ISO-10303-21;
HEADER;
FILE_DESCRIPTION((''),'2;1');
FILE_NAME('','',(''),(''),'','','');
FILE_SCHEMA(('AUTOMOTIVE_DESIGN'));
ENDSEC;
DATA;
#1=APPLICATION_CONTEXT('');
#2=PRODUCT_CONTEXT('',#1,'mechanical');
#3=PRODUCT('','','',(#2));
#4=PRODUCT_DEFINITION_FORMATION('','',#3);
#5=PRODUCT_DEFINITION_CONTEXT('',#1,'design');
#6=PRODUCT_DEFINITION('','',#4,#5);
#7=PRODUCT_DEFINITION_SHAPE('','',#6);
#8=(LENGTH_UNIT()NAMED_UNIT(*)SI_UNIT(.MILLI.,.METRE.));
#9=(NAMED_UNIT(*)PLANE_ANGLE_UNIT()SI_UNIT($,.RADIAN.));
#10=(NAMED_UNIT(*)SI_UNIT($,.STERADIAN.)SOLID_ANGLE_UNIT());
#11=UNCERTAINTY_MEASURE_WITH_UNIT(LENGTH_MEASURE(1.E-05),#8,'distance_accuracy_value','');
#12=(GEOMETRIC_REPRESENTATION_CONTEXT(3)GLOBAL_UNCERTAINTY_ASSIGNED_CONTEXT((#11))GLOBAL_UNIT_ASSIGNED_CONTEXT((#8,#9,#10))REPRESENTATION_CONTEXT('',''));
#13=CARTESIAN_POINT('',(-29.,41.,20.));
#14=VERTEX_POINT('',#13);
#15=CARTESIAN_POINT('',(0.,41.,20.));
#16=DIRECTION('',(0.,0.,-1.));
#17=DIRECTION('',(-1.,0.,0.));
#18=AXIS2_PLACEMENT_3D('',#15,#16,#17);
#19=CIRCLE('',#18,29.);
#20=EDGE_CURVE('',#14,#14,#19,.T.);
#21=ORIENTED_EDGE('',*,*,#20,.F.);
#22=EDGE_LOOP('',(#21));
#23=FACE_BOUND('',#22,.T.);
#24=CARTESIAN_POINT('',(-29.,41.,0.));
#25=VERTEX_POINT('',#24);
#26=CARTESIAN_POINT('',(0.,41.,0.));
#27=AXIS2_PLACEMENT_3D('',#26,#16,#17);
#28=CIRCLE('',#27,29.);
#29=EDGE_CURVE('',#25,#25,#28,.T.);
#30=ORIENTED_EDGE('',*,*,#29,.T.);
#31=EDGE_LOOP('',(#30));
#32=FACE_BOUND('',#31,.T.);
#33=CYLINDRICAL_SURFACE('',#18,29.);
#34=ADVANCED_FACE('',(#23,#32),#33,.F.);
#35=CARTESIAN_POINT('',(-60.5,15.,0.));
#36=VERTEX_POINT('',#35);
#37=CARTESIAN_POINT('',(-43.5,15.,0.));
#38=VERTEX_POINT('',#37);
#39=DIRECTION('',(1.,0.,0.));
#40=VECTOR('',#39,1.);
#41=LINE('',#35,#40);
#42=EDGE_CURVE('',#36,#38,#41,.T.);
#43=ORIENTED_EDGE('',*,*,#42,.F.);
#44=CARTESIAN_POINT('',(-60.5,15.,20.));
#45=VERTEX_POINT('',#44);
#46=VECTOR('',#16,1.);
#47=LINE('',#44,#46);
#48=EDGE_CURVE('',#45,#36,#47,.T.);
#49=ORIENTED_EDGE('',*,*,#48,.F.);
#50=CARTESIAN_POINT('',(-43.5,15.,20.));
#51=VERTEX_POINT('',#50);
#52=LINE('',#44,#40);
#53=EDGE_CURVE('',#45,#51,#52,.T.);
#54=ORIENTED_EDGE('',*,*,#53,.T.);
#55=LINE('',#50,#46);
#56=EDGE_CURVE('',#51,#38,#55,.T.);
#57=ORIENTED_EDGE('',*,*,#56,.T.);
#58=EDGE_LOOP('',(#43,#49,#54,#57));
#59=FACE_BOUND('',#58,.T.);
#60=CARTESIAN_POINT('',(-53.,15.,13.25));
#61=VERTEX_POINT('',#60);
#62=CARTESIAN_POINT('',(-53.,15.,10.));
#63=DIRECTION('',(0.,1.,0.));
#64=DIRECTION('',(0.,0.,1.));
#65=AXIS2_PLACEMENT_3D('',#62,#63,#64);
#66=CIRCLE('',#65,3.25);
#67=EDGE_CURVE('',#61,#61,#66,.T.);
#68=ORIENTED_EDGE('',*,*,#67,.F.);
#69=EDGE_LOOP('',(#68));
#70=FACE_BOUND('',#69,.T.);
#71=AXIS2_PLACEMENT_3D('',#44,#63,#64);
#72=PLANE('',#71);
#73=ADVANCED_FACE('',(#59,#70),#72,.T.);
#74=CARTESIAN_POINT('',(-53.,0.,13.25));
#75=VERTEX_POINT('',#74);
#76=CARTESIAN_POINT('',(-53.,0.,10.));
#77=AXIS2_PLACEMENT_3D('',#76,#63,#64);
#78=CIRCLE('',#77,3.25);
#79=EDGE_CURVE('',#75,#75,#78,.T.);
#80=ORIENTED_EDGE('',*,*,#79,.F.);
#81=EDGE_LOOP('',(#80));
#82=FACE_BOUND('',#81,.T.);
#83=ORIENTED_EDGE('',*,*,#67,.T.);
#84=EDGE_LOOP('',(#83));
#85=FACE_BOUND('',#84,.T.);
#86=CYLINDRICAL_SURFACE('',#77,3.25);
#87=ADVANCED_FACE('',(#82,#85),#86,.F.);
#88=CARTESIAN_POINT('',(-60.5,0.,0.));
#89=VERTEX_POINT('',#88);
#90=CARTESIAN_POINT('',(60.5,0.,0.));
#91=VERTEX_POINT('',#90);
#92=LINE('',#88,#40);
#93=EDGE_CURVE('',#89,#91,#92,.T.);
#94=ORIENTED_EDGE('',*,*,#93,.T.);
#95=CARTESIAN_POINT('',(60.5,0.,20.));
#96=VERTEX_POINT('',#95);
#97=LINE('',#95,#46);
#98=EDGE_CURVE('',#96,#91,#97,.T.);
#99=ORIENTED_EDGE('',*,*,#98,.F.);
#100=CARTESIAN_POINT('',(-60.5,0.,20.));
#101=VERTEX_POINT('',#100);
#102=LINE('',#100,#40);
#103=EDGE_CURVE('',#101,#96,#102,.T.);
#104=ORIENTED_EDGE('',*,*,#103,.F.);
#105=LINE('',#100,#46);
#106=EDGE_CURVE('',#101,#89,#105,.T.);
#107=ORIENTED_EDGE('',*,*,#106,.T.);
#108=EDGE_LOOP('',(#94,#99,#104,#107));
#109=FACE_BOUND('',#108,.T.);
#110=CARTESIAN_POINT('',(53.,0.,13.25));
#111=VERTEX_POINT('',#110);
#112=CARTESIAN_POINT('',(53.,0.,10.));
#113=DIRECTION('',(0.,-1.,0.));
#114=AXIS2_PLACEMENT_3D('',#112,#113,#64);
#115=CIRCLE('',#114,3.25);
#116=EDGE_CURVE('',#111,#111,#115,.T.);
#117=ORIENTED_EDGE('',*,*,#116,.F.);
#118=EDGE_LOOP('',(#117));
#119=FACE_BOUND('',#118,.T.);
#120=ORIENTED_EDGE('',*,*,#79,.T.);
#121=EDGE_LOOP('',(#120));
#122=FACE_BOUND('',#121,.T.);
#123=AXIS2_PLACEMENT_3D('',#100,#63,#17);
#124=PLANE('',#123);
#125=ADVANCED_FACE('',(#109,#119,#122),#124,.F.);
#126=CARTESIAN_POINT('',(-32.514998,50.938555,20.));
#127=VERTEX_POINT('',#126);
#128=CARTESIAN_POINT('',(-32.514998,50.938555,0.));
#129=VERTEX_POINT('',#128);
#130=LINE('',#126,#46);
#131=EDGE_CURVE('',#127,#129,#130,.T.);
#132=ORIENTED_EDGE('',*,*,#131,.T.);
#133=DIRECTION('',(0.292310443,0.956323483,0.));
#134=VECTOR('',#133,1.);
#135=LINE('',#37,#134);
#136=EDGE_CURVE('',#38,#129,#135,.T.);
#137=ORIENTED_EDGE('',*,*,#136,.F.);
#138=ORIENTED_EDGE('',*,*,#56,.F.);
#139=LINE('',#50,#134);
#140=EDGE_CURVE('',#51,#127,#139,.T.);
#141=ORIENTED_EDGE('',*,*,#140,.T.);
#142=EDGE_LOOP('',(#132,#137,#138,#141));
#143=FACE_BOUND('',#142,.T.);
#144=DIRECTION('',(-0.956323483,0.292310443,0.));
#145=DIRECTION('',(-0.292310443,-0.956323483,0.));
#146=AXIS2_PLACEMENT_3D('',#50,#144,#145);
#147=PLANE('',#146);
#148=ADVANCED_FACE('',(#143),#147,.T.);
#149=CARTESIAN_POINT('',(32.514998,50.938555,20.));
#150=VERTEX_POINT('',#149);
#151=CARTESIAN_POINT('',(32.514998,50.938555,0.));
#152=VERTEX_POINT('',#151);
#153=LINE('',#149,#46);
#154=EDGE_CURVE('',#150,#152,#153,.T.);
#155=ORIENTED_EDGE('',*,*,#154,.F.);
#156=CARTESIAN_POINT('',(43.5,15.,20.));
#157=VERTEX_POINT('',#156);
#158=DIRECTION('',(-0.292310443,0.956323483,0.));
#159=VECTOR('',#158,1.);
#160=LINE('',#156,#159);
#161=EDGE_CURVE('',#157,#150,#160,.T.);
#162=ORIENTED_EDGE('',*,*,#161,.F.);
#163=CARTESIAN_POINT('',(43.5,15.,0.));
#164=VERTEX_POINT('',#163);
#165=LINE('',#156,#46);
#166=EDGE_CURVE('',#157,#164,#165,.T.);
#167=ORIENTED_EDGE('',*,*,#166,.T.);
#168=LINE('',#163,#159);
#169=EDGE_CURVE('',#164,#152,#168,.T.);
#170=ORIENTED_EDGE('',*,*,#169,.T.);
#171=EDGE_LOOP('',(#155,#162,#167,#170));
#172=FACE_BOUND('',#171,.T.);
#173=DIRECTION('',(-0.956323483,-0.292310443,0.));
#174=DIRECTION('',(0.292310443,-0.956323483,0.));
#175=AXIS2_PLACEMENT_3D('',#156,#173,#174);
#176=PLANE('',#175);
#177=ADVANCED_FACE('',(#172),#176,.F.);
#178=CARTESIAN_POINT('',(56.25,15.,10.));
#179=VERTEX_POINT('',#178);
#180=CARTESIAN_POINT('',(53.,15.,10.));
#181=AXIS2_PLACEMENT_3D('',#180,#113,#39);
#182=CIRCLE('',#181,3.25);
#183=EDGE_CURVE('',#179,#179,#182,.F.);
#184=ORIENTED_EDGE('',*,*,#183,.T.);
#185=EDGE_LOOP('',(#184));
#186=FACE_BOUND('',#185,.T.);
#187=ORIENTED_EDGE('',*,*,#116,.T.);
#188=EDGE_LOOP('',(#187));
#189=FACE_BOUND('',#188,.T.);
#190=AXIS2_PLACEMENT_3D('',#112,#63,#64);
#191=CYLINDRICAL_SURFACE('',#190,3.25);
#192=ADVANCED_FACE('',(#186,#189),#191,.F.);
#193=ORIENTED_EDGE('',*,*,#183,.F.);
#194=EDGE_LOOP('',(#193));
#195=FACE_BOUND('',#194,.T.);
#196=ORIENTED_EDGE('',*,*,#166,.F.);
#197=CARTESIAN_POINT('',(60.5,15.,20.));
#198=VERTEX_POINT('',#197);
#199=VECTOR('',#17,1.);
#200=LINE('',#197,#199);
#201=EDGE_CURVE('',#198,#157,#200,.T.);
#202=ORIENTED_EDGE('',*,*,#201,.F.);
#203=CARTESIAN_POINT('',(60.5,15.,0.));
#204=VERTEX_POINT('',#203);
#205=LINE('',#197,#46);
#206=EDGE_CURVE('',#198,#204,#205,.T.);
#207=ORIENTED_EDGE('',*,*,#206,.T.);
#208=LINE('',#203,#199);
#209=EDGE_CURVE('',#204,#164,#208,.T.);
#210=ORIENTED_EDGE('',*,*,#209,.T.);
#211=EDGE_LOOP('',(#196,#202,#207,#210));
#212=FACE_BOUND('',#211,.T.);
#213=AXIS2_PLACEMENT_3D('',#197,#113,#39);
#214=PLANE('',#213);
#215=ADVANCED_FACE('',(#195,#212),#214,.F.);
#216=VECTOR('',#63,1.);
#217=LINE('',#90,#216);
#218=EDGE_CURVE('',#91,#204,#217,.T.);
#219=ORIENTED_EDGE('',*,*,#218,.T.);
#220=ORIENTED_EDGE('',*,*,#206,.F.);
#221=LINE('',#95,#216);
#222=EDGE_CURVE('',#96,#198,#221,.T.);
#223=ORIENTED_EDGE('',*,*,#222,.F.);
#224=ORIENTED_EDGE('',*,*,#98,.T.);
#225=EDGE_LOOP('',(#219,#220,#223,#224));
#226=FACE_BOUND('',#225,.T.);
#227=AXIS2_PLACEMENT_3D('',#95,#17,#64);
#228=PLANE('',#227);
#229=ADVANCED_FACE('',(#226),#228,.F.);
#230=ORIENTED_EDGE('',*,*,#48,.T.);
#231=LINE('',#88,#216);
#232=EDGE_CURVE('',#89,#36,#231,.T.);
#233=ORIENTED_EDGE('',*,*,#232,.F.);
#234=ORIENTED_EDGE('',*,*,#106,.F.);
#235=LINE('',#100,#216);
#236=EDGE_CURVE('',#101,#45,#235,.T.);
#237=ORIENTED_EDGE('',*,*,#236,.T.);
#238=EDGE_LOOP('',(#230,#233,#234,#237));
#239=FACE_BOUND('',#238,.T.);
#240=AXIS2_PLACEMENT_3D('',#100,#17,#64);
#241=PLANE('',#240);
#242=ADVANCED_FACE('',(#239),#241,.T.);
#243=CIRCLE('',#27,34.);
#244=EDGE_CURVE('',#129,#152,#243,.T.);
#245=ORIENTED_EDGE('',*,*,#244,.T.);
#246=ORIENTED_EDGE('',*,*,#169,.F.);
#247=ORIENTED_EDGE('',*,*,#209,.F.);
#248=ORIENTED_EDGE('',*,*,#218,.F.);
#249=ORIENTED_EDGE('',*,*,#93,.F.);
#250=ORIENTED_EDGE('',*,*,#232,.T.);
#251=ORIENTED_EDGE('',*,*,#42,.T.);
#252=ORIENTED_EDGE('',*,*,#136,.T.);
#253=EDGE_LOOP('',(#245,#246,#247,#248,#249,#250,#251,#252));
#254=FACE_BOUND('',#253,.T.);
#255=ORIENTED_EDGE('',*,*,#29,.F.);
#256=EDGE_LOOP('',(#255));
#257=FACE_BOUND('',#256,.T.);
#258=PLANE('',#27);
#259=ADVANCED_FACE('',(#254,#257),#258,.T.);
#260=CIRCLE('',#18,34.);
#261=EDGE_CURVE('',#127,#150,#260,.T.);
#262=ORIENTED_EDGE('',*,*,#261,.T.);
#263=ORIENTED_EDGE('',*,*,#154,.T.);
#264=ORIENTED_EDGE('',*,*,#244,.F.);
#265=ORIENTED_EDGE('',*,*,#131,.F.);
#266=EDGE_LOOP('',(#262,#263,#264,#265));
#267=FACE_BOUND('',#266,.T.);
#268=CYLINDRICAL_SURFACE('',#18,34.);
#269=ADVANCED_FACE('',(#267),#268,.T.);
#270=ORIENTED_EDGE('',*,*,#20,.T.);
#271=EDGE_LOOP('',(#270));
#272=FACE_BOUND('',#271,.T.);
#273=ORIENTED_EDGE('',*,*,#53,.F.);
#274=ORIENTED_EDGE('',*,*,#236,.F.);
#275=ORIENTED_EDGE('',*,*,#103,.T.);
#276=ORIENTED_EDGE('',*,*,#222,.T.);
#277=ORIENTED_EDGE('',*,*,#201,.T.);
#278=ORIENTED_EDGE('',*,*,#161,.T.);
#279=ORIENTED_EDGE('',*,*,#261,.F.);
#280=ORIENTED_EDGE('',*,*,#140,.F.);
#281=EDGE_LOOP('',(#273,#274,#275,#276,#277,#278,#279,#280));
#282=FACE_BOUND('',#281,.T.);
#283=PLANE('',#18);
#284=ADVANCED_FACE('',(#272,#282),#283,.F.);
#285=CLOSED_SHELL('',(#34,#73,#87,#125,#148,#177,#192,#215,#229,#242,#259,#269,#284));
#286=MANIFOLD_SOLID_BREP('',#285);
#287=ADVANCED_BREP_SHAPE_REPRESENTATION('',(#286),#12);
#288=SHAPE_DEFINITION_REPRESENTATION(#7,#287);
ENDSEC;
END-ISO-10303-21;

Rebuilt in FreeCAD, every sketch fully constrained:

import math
import FreeCAD as App
import Part
import Sketcher

doc = App.newDocument("Part")
body = doc.addObject("PartDesign::Body", "Body")

sketch1 = doc.addObject("Sketcher::SketchObject", "Sketch")
body.addObject(sketch1)
sketch1.AttachmentSupport = (doc.XY_Plane, [""])
sketch1.MapMode = "FlatFace"
sketch1.addGeometry(Part.LineSegment(App.Vector(-60, 0, 0), App.Vector(60, 0, 0)), False)
sketch1.addGeometry(Part.LineSegment(App.Vector(60, 0, 0), App.Vector(60, 15, 0)), False)
sketch1.addGeometry(Part.LineSegment(App.Vector(60, 15, 0), App.Vector(44, 15, 0)), False)
sketch1.addGeometry(Part.LineSegment(App.Vector(44, 15, 0), App.Vector(33, 51, 0)), False)
sketch1.addGeometry(Part.ArcOfCircle(Part.Circle(App.Vector(0, 41, 0), App.Vector(0, 0, 1), 34), math.radians(17), math.radians(163)), False)
sketch1.addGeometry(Part.LineSegment(App.Vector(-33, 51, 0), App.Vector(-44, 15, 0)), False)
sketch1.addGeometry(Part.LineSegment(App.Vector(-44, 15, 0), App.Vector(-60, 15, 0)), False)
sketch1.addGeometry(Part.LineSegment(App.Vector(-60, 15, 0), App.Vector(-60, 0, 0)), False)
sketch1.addConstraint(Sketcher.Constraint("Coincident", 0, 2, 1, 1))
sketch1.addConstraint(Sketcher.Constraint("Coincident", 1, 2, 2, 1))
sketch1.addConstraint(Sketcher.Constraint("Coincident", 2, 2, 3, 1))
sketch1.addConstraint(Sketcher.Constraint("Tangent", 3, 2, 4, 1))
sketch1.addConstraint(Sketcher.Constraint("Tangent", 4, 2, 5, 1))
sketch1.addConstraint(Sketcher.Constraint("Coincident", 5, 2, 6, 1))
sketch1.addConstraint(Sketcher.Constraint("Coincident", 6, 2, 7, 1))
sketch1.addConstraint(Sketcher.Constraint("Coincident", 7, 2, 0, 1))
sketch1.addConstraint(Sketcher.Constraint("Horizontal", 0))
sketch1.addConstraint(Sketcher.Constraint("Vertical", 1))
sketch1.addConstraint(Sketcher.Constraint("Horizontal", 2))
sketch1.addConstraint(Sketcher.Constraint("Horizontal", 6))
sketch1.addConstraint(Sketcher.Constraint("Vertical", 7))
sketch1.addConstraint(Sketcher.Constraint("Symmetric", 0, 2, 7, 2, -1, 1))
sketch1.addConstraint(Sketcher.Constraint("Symmetric", 3, 2, 4, 2, -2))
sketch1.addConstraint(Sketcher.Constraint("Horizontal", 2, 2, 5, 2))
sketch1.addConstraint(Sketcher.Constraint("Radius", 4, 34.0))
sketch1.addConstraint(Sketcher.Constraint("DistanceX", 0, 1, 0, 2, 121.0))
sketch1.addConstraint(Sketcher.Constraint("DistanceX", 2, 2, 2, 1, 17.0))
sketch1.addConstraint(Sketcher.Constraint("DistanceY", 1, 1, 1, 2, 15.0))
sketch1.addConstraint(Sketcher.Constraint("DistanceY", -1, 1, 4, 3, 41.0))
pad1 = doc.addObject("PartDesign::Pad", "Pad")
body.addObject(pad1)
pad1.Profile = sketch1
pad1.Length = 20

sketch2 = doc.addObject("Sketcher::SketchObject", "Sketch001")
body.addObject(sketch2)
sketch2.AttachmentSupport = (doc.XY_Plane, [""])
sketch2.MapMode = "FlatFace"
sketch2.addGeometry(Part.Circle(App.Vector(0, 41, 0), App.Vector(0, 0, 1), 29), False)
sketch2.addConstraint(Sketcher.Constraint("PointOnObject", 0, 3, -2))
sketch2.addConstraint(Sketcher.Constraint("Diameter", 0, 58.0))
sketch2.addConstraint(Sketcher.Constraint("DistanceY", -1, 1, 0, 3, 41.0))
pocket1 = doc.addObject("PartDesign::Pocket", "Pocket")
body.addObject(pocket1)
pocket1.Profile = sketch2
pocket1.Type = "ThroughAll"
pocket1.Midplane = True

sketch3 = doc.addObject("Sketcher::SketchObject", "Sketch002")
body.addObject(sketch3)
sketch3.AttachmentSupport = (doc.XZ_Plane, [""])
sketch3.MapMode = "FlatFace"
sketch3.AttachmentOffset = App.Placement(App.Vector(0, 0, 1), App.Rotation())
sketch3.addGeometry(Part.Circle(App.Vector(-53, 10, 0), App.Vector(0, 0, 1), 3.2), False)
sketch3.addConstraint(Sketcher.Constraint("Diameter", 0, 6.5))
sketch3.addConstraint(Sketcher.Constraint("DistanceX", 0, 3, -1, 1, 53.0))
sketch3.addConstraint(Sketcher.Constraint("DistanceY", -1, 1, 0, 3, 10.0))
pocket2 = doc.addObject("PartDesign::Pocket", "Pocket001")
body.addObject(pocket2)
pocket2.Profile = sketch3
pocket2.Length = 77
doc.recompute()

mirrored = doc.addObject("PartDesign::Mirrored", "Mirrored")
body.addObject(mirrored)
mirrored.Originals = [pocket2]
mirrored.MirrorPlane = (doc.YZ_Plane, [""])
body.Tip = mirrored

doc.recompute()
